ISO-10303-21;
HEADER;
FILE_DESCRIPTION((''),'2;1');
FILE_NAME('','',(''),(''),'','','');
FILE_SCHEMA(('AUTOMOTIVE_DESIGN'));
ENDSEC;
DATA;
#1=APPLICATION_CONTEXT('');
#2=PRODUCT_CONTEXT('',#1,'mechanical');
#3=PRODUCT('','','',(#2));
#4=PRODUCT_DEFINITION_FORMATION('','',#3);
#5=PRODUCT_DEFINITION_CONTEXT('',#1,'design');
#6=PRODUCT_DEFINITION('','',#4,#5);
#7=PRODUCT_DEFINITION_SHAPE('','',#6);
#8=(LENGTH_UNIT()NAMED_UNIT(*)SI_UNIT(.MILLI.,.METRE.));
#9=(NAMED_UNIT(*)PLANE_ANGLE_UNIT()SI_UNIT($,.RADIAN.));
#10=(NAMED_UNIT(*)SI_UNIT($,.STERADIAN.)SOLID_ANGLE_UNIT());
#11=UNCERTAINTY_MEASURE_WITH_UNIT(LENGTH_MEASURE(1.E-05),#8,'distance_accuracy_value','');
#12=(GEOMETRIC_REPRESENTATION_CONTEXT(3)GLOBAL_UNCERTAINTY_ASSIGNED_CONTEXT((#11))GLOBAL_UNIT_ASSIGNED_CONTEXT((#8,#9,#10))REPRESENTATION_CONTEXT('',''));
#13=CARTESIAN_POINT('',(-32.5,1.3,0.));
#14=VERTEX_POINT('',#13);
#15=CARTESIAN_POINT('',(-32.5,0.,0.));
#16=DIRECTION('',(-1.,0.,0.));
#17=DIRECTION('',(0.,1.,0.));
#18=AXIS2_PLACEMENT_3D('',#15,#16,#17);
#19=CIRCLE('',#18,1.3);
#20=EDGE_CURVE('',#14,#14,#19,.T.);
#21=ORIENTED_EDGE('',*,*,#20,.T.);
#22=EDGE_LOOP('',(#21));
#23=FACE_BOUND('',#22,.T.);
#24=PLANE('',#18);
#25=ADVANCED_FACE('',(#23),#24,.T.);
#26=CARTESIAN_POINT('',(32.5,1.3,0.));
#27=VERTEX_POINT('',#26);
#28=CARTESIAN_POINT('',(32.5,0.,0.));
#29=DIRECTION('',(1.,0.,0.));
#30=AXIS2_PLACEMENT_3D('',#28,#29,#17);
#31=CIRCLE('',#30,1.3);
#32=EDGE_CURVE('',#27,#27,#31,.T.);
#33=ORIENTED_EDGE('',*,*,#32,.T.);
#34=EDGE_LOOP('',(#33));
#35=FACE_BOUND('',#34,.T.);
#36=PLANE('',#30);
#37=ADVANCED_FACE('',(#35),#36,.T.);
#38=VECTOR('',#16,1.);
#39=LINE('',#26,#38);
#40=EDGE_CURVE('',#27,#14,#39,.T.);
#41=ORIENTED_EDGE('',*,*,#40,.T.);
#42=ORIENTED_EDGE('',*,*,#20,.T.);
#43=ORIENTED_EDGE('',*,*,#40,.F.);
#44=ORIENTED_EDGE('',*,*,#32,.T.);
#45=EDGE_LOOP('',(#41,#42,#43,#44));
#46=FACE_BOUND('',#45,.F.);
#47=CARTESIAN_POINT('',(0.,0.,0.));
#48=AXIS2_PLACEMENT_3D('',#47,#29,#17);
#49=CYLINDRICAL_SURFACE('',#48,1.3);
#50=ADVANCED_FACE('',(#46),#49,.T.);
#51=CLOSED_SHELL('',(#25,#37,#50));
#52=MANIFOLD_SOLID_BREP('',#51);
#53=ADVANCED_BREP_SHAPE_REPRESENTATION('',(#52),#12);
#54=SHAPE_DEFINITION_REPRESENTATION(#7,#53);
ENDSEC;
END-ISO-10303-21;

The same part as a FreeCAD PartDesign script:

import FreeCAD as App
import Part
import Sketcher

V = App.Vector

doc = App.newDocument("Part")
body = doc.addObject("PartDesign::Body", "Body")

# Sketch on YZ plane
sketch1 = doc.addObject("Sketcher::SketchObject", "Sketch")
body.addObject(sketch1)
sketch1.AttachmentSupport = (doc.YZ_Plane, [""])
sketch1.MapMode = "FlatFace"
sketch1.addGeometry(Part.Circle(V(0, 0, 0), V(0, 0, 1), 1.3), False)
sketch1.addConstraint([
    Sketcher.Constraint("Coincident", 0, 3, -1, 1),
    Sketcher.Constraint("Diameter", 0, 2.6),
])
pad1 = doc.addObject("PartDesign::Pad", "Pad")
body.addObject(pad1)
pad1.Profile = sketch1
pad1.Length = 32.5

# Sketch on YZ plane
sketch2 = doc.addObject("Sketcher::SketchObject", "Sketch001")
body.addObject(sketch2)
sketch2.AttachmentSupport = (doc.YZ_Plane, [""])
sketch2.MapMode = "FlatFace"
sketch2.addGeometry(Part.Circle(V(0, 0, 0), V(0, 0, 1), 1.3), False)
sketch2.addConstraint([
    Sketcher.Constraint("Coincident", 0, 3, -1, 1),
    Sketcher.Constraint("Diameter", 0, 2.6),
])
pad2 = doc.addObject("PartDesign::Pad", "Pad001")
body.addObject(pad2)
pad2.Profile = sketch2
pad2.Length = 32.5
pad2.Reversed = True

doc.recompute()
